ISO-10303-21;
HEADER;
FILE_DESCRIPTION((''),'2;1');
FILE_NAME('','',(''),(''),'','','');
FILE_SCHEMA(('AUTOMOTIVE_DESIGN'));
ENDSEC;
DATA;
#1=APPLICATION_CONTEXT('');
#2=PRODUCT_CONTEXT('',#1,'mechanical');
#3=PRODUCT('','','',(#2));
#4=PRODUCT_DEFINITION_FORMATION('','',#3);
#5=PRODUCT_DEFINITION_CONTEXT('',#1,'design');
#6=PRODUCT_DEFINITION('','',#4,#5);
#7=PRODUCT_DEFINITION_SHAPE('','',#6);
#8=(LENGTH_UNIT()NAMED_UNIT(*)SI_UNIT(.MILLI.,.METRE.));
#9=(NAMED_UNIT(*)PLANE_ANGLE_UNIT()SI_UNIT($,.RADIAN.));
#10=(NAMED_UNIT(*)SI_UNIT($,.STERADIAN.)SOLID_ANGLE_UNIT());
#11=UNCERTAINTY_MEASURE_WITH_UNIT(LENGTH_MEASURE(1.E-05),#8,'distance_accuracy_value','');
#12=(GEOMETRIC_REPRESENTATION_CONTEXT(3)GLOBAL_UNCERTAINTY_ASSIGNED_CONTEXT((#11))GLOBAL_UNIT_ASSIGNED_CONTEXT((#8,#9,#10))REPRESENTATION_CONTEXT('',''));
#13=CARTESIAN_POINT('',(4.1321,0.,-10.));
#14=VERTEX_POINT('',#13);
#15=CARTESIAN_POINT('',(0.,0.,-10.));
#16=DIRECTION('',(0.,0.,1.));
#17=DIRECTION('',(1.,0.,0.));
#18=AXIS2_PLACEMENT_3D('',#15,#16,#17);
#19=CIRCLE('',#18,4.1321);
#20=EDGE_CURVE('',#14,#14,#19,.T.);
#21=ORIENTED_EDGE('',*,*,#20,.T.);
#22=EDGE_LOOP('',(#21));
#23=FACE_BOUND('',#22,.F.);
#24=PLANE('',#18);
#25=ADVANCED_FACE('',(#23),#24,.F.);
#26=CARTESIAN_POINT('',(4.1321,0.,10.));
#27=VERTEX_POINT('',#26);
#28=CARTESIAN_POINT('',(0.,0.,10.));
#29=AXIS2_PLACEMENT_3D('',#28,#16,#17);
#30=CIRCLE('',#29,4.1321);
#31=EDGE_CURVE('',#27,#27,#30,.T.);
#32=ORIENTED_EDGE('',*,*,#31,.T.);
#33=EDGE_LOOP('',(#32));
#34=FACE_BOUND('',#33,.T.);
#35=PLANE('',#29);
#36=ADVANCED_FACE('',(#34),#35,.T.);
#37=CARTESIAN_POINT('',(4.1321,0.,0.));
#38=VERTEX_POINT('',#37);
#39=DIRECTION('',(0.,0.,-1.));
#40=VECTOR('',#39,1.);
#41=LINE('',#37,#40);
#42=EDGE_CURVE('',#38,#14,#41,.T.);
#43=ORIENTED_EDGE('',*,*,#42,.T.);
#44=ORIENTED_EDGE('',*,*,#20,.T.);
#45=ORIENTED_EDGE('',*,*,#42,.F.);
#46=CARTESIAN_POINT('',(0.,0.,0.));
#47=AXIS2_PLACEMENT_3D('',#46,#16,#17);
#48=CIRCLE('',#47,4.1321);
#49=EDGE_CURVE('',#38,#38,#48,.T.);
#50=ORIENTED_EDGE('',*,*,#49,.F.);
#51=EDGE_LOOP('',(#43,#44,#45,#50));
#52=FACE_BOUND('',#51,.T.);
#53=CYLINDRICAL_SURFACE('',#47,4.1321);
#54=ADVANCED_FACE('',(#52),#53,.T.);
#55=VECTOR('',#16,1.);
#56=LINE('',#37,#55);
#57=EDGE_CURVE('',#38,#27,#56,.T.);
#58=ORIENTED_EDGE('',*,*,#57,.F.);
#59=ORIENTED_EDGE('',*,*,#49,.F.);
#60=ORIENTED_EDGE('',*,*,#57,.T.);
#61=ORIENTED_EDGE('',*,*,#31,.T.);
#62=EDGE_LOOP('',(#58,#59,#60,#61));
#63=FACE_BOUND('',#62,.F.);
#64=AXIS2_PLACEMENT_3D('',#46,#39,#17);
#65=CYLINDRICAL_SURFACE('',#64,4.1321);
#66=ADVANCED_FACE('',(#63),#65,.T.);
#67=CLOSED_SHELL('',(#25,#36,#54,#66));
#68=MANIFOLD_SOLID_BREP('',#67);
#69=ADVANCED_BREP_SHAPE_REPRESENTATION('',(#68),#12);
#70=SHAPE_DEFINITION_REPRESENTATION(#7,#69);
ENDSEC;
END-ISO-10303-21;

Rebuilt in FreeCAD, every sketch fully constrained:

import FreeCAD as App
import Part
import Sketcher

doc = App.newDocument("Part")
body = doc.addObject("PartDesign::Body", "Body")

sketch1 = doc.addObject("Sketcher::SketchObject", "Sketch")
body.addObject(sketch1)
sketch1.AttachmentSupport = (doc.XY_Plane, [""])
sketch1.MapMode = "FlatFace"
sketch1.addGeometry(Part.Circle(App.Vector(0, 0, 0), App.Vector(0, 0, 1), 4.1), False)
sketch1.addConstraint([
    Sketcher.Constraint("Coincident", 0, 3, -1, 1),
    Sketcher.Constraint("Diameter", 0, 8.2642),
])
pad1 = doc.addObject("PartDesign::Pad", "Pad")
body.addObject(pad1)
pad1.Profile = sketch1
pad1.Length = 20
pad1.Midplane = True

doc.recompute()
